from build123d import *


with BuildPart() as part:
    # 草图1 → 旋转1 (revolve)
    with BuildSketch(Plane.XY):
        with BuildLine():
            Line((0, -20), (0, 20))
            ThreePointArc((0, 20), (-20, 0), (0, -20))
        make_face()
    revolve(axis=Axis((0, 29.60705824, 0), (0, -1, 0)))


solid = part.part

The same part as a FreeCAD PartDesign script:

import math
import FreeCAD as App
import Part
import Sketcher
from FreeCAD import Vector
Q = App.Units.Quantity

doc = App.newDocument("Part")
body = doc.addObject("PartDesign::Body", "Body")

sketch1 = body.newObject("Sketcher::SketchObject", "Sketch")
sketch1.AttachmentSupport = (doc.getObject("XY_Plane"), [""])
sketch1.MapMode = "FlatFace"
sketch1.addGeometry([
    Part.LineSegment(Vector(0, -20, 0), Vector(0, 20, 0)),
    Part.ArcOfCircle(Part.Circle(Vector(0, 0, 0), Vector(0, 0, 1), 20), math.radians(90), math.radians(270)),
], False)
sketch1.addConstraint([
    Sketcher.Constraint("Coincident", 0, 1, 1, 2),
    Sketcher.Constraint("Coincident", 1, 1, 0, 2),
    Sketcher.Constraint("Vertical", 0),
    Sketcher.Constraint("Coincident", 1, 3, -1, 1),
    Sketcher.Constraint("PointOnObject", 0, 1, -2),
    Sketcher.Constraint("Radius", 1, Q("20 mm")),
])
revolution = body.newObject("PartDesign::Revolution", "Revolution")
revolution.Profile = sketch1
revolution.ReferenceAxis = (sketch1, ["V_Axis"])
revolution.Angle = 360

doc.recompute()
